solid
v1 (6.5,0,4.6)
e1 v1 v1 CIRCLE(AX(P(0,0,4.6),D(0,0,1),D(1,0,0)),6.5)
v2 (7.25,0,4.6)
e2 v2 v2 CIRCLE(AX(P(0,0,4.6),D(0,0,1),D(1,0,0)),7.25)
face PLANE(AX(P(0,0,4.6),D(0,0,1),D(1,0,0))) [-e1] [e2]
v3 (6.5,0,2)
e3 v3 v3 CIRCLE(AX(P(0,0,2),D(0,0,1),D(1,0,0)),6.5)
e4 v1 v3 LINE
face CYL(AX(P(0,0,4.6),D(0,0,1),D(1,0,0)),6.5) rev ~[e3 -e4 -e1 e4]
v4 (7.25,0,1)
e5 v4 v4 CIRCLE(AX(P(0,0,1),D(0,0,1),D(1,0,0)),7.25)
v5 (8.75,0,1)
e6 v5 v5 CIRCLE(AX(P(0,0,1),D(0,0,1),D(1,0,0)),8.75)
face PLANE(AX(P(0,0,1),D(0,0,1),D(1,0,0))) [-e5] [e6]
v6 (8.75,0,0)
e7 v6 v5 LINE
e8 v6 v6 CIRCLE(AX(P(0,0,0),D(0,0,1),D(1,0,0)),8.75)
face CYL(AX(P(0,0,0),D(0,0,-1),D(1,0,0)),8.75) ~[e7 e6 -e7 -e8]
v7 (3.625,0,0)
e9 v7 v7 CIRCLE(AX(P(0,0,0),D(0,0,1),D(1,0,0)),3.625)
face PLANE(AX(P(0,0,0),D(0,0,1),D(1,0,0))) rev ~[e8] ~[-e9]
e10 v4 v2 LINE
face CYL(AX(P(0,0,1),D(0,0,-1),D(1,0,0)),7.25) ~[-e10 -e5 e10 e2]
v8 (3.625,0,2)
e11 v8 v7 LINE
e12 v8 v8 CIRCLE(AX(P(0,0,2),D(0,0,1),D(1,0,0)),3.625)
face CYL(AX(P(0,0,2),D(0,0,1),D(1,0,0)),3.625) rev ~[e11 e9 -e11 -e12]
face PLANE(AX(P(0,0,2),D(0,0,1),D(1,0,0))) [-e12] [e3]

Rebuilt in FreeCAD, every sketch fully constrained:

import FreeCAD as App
import Part
import Sketcher
from FreeCAD import Vector

doc = App.newDocument("Part")
body = doc.addObject("PartDesign::Body", "Body")

sketch1 = body.newObject("Sketcher::SketchObject", "Sketch")
sketch1.AttachmentSupport = (doc.getObject("XY_Plane"), [""])
sketch1.MapMode = "FlatFace"
sketch1.addGeometry(Part.Circle(Vector(0, 0, 0), Vector(0, 0, 1), 8.75), False)
sketch1.addConstraint([
    Sketcher.Constraint("Coincident", 0, 3, -1, 1),
    Sketcher.Constraint("Diameter", 0, 17.5),
])
pad1 = body.newObject("PartDesign::Pad", "Pad")
pad1.Profile = sketch1
pad1.Length = 1

sketch2 = body.newObject("Sketcher::SketchObject", "Sketch001")
sketch2.AttachmentSupport = (doc.getObject("XY_Plane"), [""])
sketch2.MapMode = "FlatFace"
sketch2.AttachmentOffset = App.Placement(Vector(0, 0, 1), App.Rotation())
sketch2.addGeometry(Part.Circle(Vector(0, 0, 0), Vector(0, 0, 1), 7.25), False)
sketch2.addConstraint([
    Sketcher.Constraint("Coincident", 0, 3, -1, 1),
    Sketcher.Constraint("Diameter", 0, 14.5),
])
pad2 = body.newObject("PartDesign::Pad", "Pad001")
pad2.Profile = sketch2
pad2.Length = 3.6

sketch3 = body.newObject("Sketcher::SketchObject", "Sketch002")
sketch3.AttachmentSupport = (doc.getObject("XY_Plane"), [""])
sketch3.MapMode = "FlatFace"
sketch3.AttachmentOffset = App.Placement(Vector(0, 0, 4.6), App.Rotation())
sketch3.addGeometry(Part.Circle(Vector(0, 0, 0), Vector(0, 0, 1), 6.5), False)
sketch3.addConstraint([
    Sketcher.Constraint("Coincident", 0, 3, -1, 1),
    Sketcher.Constraint("Diameter", 0, 13.0),
])
pocket1 = body.newObject("PartDesign::Pocket", "Pocket")
pocket1.Profile = sketch3
pocket1.Length = 2.6

sketch4 = body.newObject("Sketcher::SketchObject", "Sketch003")
sketch4.AttachmentSupport = (doc.getObject("XY_Plane"), [""])
sketch4.MapMode = "FlatFace"
sketch4.AttachmentOffset = App.Placement(Vector(0, 0, 2), App.Rotation())
sketch4.addGeometry(Part.Circle(Vector(0, 0, 0), Vector(0, 0, 1), 3.625), False)
sketch4.addConstraint([
    Sketcher.Constraint("Coincident", 0, 3, -1, 1),
    Sketcher.Constraint("Diameter", 0, 7.25),
])
pocket2 = body.newObject("PartDesign::Pocket", "Pocket001")
pocket2.Profile = sketch4
pocket2.Type = "ThroughAll"

doc.recompute()
